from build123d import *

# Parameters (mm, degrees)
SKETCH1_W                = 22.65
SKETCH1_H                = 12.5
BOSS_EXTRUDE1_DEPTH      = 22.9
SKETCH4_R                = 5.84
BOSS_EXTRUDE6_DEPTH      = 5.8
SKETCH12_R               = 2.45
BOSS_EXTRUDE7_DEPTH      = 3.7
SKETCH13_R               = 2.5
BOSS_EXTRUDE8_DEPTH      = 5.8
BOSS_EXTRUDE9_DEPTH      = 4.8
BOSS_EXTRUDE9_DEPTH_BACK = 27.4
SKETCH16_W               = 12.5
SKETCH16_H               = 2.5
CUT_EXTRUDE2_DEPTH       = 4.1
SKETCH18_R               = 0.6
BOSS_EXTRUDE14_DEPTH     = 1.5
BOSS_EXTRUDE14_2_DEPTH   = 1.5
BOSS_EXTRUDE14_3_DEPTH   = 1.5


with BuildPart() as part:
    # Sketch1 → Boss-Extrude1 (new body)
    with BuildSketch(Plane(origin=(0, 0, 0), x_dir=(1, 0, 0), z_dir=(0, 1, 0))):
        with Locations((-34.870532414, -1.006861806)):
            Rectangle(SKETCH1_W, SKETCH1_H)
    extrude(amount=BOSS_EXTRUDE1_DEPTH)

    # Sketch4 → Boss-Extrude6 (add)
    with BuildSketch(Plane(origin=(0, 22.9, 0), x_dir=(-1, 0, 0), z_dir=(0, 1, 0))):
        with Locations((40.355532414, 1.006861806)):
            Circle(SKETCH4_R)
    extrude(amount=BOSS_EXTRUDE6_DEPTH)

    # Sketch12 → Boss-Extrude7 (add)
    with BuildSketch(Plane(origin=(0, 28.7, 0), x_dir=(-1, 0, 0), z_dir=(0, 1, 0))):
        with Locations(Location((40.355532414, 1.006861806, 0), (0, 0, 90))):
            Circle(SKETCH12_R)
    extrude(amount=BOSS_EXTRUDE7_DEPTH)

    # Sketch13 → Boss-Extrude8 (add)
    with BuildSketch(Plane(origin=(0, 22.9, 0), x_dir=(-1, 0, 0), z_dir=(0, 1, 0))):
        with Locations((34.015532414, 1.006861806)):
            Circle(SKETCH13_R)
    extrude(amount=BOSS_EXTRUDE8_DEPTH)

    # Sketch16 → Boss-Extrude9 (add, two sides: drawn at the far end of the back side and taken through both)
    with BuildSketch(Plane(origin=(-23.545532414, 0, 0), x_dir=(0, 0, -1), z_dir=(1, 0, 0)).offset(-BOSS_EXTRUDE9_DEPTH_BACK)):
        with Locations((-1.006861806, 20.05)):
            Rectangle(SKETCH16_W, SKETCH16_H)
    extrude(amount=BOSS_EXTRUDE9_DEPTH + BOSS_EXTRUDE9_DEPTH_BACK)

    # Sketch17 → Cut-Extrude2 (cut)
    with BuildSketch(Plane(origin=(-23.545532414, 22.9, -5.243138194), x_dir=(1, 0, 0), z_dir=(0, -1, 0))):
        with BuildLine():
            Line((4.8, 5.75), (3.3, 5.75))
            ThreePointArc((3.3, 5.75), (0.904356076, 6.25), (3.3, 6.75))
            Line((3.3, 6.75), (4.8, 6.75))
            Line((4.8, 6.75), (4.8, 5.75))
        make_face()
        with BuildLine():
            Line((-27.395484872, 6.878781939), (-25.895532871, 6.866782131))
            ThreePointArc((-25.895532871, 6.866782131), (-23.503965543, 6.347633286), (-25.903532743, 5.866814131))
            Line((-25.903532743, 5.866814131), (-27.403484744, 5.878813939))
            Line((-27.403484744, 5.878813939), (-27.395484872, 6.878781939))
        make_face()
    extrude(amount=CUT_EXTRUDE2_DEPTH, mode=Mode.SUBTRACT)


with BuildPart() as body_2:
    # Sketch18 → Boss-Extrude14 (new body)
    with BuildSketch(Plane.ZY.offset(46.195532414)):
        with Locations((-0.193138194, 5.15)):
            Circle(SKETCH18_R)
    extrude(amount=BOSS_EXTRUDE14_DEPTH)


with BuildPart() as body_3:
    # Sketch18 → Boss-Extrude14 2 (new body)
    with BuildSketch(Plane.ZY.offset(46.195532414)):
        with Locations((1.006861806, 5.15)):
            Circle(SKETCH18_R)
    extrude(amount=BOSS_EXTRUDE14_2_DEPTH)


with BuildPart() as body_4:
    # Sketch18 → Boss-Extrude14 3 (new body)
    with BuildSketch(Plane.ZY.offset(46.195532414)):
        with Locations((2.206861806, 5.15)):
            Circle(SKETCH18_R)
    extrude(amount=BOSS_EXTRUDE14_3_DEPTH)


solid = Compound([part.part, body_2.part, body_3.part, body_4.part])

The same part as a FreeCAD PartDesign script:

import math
import FreeCAD as App
import Part
import Sketcher
from FreeCAD import Vector


def add_polygon(sketch, points):
    """Adds a closed chain of lines whose ends are joined by coincident constraints."""
    first, n = sketch.GeometryCount, len(points)
    for a, b in zip(points, points[1:] + points[:1]):
        sketch.addGeometry(Part.LineSegment(App.Vector(*a, 0), App.Vector(*b, 0)), False)
    for i in range(n):
        sketch.addConstraint(Sketcher.Constraint("Coincident", first + i, 2, first + (i + 1) % n, 1))

doc = App.newDocument("Part")
body = doc.addObject("PartDesign::Body", "Body")

sketch1 = body.newObject("Sketcher::SketchObject", "Sketch")
sketch1.AttachmentSupport = (doc.getObject("XZ_Plane"), [""])
sketch1.MapMode = "FlatFace"
add_polygon(sketch1, [(-46, -5), (-46, 7), (-24, 7), (-24, -5)])
sketch1.addConstraint(Sketcher.Constraint("Vertical", 0))
sketch1.addConstraint(Sketcher.Constraint("Horizontal", 1))
sketch1.addConstraint(Sketcher.Constraint("Vertical", 2))
sketch1.addConstraint(Sketcher.Constraint("Horizontal", 3))
sketch1.addConstraint(Sketcher.Constraint("DistanceY", 0, 1, 0, 2, 12.5))
sketch1.addConstraint(Sketcher.Constraint("DistanceX", 1, 1, 1, 2, 22.65))
sketch1.addConstraint(Sketcher.Constraint("DistanceY", -1, 1, 0, 2, 7.256862))
sketch1.addConstraint(Sketcher.Constraint("DistanceX", 0, 2, -1, 1, 46.195532))
pad1 = body.newObject("PartDesign::Pad", "Pad")
pad1.Profile = sketch1
pad1.Length = 22.9
pad1.Reversed = True

sketch2 = body.newObject("Sketcher::SketchObject", "Sketch001")
sketch2.AttachmentSupport = (doc.getObject("XZ_Plane"), [""])
sketch2.MapMode = "FlatFace"
sketch2.AttachmentOffset = App.Placement(Vector(0, 0, -22.9), App.Rotation())
sketch2.addGeometry(Part.Circle(Vector(-40, 1, 0), Vector(0, 0, 1), 6), False)
sketch2.addConstraint(Sketcher.Constraint("Diameter", 0, 11.68))
sketch2.addConstraint(Sketcher.Constraint("DistanceY", -1, 1, 0, 3, 1.006862))
sketch2.addConstraint(Sketcher.Constraint("DistanceX", 0, 3, -1, 1, 40.355532))
pad2 = body.newObject("PartDesign::Pad", "Pad001")
pad2.Profile = sketch2
pad2.Length = 5.8
pad2.Reversed = True

sketch3 = body.newObject("Sketcher::SketchObject", "Sketch002")
sketch3.AttachmentSupport = (doc.getObject("XZ_Plane"), [""])
sketch3.MapMode = "FlatFace"
sketch3.AttachmentOffset = App.Placement(Vector(0, 0, -28.7), App.Rotation())
sketch3.addGeometry(Part.Circle(Vector(-40.4, 1, 0), Vector(0, 0, 1), 2.5), False)
sketch3.addConstraint(Sketcher.Constraint("Diameter", 0, 4.9))
sketch3.addConstraint(Sketcher.Constraint("DistanceY", -1, 1, 0, 3, 1.006862))
sketch3.addConstraint(Sketcher.Constraint("DistanceX", 0, 3, -1, 1, 40.355532))
pad3 = body.newObject("PartDesign::Pad", "Pad002")
pad3.Profile = sketch3
pad3.Length = 3.7
pad3.Reversed = True

sketch4 = body.newObject("Sketcher::SketchObject", "Sketch003")
sketch4.AttachmentSupport = (doc.getObject("XZ_Plane"), [""])
sketch4.MapMode = "FlatFace"
sketch4.AttachmentOffset = App.Placement(Vector(0, 0, -22.9), App.Rotation())
sketch4.addGeometry(Part.Circle(Vector(-34, 1, 0), Vector(0, 0, 1), 2.5), False)
sketch4.addConstraint(Sketcher.Constraint("Diameter", 0, 5.0))
sketch4.addConstraint(Sketcher.Constraint("DistanceY", -1, 1, 0, 3, 1.006862))
sketch4.addConstraint(Sketcher.Constraint("DistanceX", 0, 3, -1, 1, 34.015532))
pad4 = body.newObject("PartDesign::Pad", "Pad003")
pad4.Profile = sketch4
pad4.Length = 5.8
pad4.Reversed = True

sketch5 = body.newObject("Sketcher::SketchObject", "Sketch004")
sketch5.AttachmentSupport = (doc.getObject("YZ_Plane"), [""])
sketch5.MapMode = "FlatFace"
sketch5.AttachmentOffset = App.Placement(Vector(0, 0, -23.545532), App.Rotation())
add_polygon(sketch5, [(21.3, 7.3), (18.8, 7.3), (18.8, -5.2), (21.3, -5.2)])
sketch5.addConstraint(Sketcher.Constraint("Horizontal", 0))
sketch5.addConstraint(Sketcher.Constraint("Vertical", 1))
sketch5.addConstraint(Sketcher.Constraint("Horizontal", 2))
sketch5.addConstraint(Sketcher.Constraint("Vertical", 3))
sketch5.addConstraint(Sketcher.Constraint("DistanceX", 0, 2, 0, 1, 2.5))
sketch5.addConstraint(Sketcher.Constraint("DistanceY", 1, 2, 1, 1, 12.5))
sketch5.addConstraint(Sketcher.Constraint("DistanceX", -1, 1, 0, 2, 18.8))
sketch5.addConstraint(Sketcher.Constraint("DistanceY", -1, 1, 0, 2, 7.256862))
pad5 = body.newObject("PartDesign::Pad", "Pad004")
pad5.Profile = sketch5
pad5.Type = "TwoLengths"
pad5.Length = 4.8
pad5.Length2 = 27.4

sketch6 = body.newObject("Sketcher::SketchObject", "Sketch005")
sketch6.AttachmentSupport = (doc.getObject("XZ_Plane"), [""])
sketch6.MapMode = "FlatFace"
sketch6.AttachmentOffset = App.Placement(Vector(0, 0, -22.9), App.Rotation())
sketch6.addGeometry(Part.LineSegment(Vector(-20.2, 0.5, 0), Vector(-18.7, 0.5, 0)), False)
sketch6.addGeometry(Part.LineSegment(Vector(-18.7, 0.5, 0), Vector(-18.7, 1.5, 0)), False)
sketch6.addGeometry(Part.LineSegment(Vector(-18.7, 1.5, 0), Vector(-20.2, 1.5, 0)), False)
sketch6.addGeometry(Part.ArcOfCircle(Part.Circle(Vector(-21.4, 1, 0), Vector(0, 0, 1), 1.2), math.radians(24), math.radians(336)), False)
sketch6.addGeometry(Part.LineSegment(Vector(-49.4, 1.6, 0), Vector(-50.9, 1.6, 0)), False)
sketch6.addGeometry(Part.LineSegment(Vector(-50.9, 1.6, 0), Vector(-50.9, 0.6, 0)), False)
sketch6.addGeometry(Part.LineSegment(Vector(-50.9, 0.6, 0), Vector(-49.4, 0.6, 0)), False)
sketch6.addGeometry(Part.ArcOfCircle(Part.Circle(Vector(-48.3, 1.1, 0), Vector(0, 0, 1), 1.2), math.radians(-157), math.radians(156)), False)
sketch6.addConstraint(Sketcher.Constraint("Coincident", 0, 2, 1, 1))
sketch6.addConstraint(Sketcher.Constraint("Coincident", 1, 2, 2, 1))
sketch6.addConstraint(Sketcher.Constraint("Coincident", 2, 2, 3, 1))
sketch6.addConstraint(Sketcher.Constraint("Coincident", 3, 2, 0, 1))
sketch6.addConstraint(Sketcher.Constraint("Coincident", 4, 2, 5, 1))
sketch6.addConstraint(Sketcher.Constraint("Coincident", 5, 2, 6, 1))
sketch6.addConstraint(Sketcher.Constraint("Coincident", 6, 2, 7, 1))
sketch6.addConstraint(Sketcher.Constraint("Coincident", 7, 2, 4, 1))
sketch6.addConstraint(Sketcher.Constraint("Horizontal", 0))
sketch6.addConstraint(Sketcher.Constraint("Vertical", 1))
sketch6.addConstraint(Sketcher.Constraint("Horizontal", 2))
sketch6.addConstraint(Sketcher.Constraint("Equal", 3, 7))
sketch6.addConstraint(Sketcher.Constraint("Perpendicular", 4, 5))
sketch6.addConstraint(Sketcher.Constraint("Perpendicular", 5, 6))
sketch6.addConstraint(Sketcher.Constraint("Vertical", 2, 2, 3, 2))
sketch6.addConstraint(Sketcher.Constraint("Equal", 4, 6))
sketch6.addConstraint(Sketcher.Constraint("DistanceY", 1, 1, 1, 2, 1.0))
sketch6.addConstraint(Sketcher.Constraint("Radius", 3, 1.25))
sketch6.addConstraint(Sketcher.Constraint("Distance", 5, 1.0))
sketch6.addConstraint(Sketcher.Constraint("DistanceX", 0, 1, 0, 2, 1.5))
sketch6.addConstraint(Sketcher.Constraint("Distance", 4, 1.5))
sketch6.addConstraint(Sketcher.Constraint("DistanceX", 5, 2, 4, 2, 0.008))
sketch6.addConstraint(Sketcher.Constraint("DistanceY", -1, 1, 3, 3, 1.006862))
sketch6.addConstraint(Sketcher.Constraint("DistanceX", 7, 3, 3, 3, 26.908282))
sketch6.addConstraint(Sketcher.Constraint("DistanceY", 3, 3, 4, 2, 0.628782))
sketch6.addConstraint(Sketcher.Constraint("DistanceX", 3, 3, -1, 1, 21.391176))
pocket1 = body.newObject("PartDesign::Pocket", "Pocket")
pocket1.Profile = sketch6
pocket1.Length = 4.1
pocket1.Reversed = True
body2 = doc.addObject("PartDesign::Body", "Body001")

sketch7 = body2.newObject("Sketcher::SketchObject", "Sketch006")
sketch7.AttachmentSupport = (doc.getObject("YZ_Plane001"), [""])
sketch7.MapMode = "FlatFace"
sketch7.AttachmentOffset = App.Placement(Vector(0, 0, -46.195532), App.Rotation())
sketch7.addGeometry(Part.Circle(Vector(5.2, -0.2, 0), Vector(0, 0, 1), 0.6), False)
sketch7.addConstraint(Sketcher.Constraint("Diameter", 0, 1.2))
sketch7.addConstraint(Sketcher.Constraint("DistanceX", -1, 1, 0, 3, 5.15))
sketch7.addConstraint(Sketcher.Constraint("DistanceY", 0, 3, -1, 1, 0.193138))
pad6 = body2.newObject("PartDesign::Pad", "Pad005")
pad6.Profile = sketch7
pad6.Length = 1.5
pad6.Reversed = True
body3 = doc.addObject("PartDesign::Body", "Body002")

sketch8 = body3.newObject("Sketcher::SketchObject", "Sketch007")
sketch8.AttachmentSupport = (doc.getObject("YZ_Plane002"), [""])
sketch8.MapMode = "FlatFace"
sketch8.AttachmentOffset = App.Placement(Vector(0, 0, -46.195532), App.Rotation())
sketch8.addGeometry(Part.Circle(Vector(5.2, 1, 0), Vector(0, 0, 1), 0.6), False)
sketch8.addConstraint(Sketcher.Constraint("Diameter", 0, 1.2))
sketch8.addConstraint(Sketcher.Constraint("DistanceX", -1, 1, 0, 3, 5.15))
sketch8.addConstraint(Sketcher.Constraint("DistanceY", -1, 1, 0, 3, 1.006862))
pad7 = body3.newObject("PartDesign::Pad", "Pad006")
pad7.Profile = sketch8
pad7.Length = 1.5
pad7.Reversed = True
body4 = doc.addObject("PartDesign::Body", "Body003")

sketch9 = body4.newObject("Sketcher::SketchObject", "Sketch008")
sketch9.AttachmentSupport = (doc.getObject("YZ_Plane003"), [""])
sketch9.MapMode = "FlatFace"
sketch9.AttachmentOffset = App.Placement(Vector(0, 0, -46.195532), App.Rotation())
sketch9.addGeometry(Part.Circle(Vector(5.2, 2.2, 0), Vector(0, 0, 1), 0.6), False)
sketch9.addConstraint(Sketcher.Constraint("Diameter", 0, 1.2))
sketch9.addConstraint(Sketcher.Constraint("DistanceX", -1, 1, 0, 3, 5.15))
sketch9.addConstraint(Sketcher.Constraint("DistanceY", -1, 1, 0, 3, 2.206862))
pad8 = body4.newObject("PartDesign::Pad", "Pad007")
pad8.Profile = sketch9
pad8.Length = 1.5
pad8.Reversed = True

doc.recompute()
